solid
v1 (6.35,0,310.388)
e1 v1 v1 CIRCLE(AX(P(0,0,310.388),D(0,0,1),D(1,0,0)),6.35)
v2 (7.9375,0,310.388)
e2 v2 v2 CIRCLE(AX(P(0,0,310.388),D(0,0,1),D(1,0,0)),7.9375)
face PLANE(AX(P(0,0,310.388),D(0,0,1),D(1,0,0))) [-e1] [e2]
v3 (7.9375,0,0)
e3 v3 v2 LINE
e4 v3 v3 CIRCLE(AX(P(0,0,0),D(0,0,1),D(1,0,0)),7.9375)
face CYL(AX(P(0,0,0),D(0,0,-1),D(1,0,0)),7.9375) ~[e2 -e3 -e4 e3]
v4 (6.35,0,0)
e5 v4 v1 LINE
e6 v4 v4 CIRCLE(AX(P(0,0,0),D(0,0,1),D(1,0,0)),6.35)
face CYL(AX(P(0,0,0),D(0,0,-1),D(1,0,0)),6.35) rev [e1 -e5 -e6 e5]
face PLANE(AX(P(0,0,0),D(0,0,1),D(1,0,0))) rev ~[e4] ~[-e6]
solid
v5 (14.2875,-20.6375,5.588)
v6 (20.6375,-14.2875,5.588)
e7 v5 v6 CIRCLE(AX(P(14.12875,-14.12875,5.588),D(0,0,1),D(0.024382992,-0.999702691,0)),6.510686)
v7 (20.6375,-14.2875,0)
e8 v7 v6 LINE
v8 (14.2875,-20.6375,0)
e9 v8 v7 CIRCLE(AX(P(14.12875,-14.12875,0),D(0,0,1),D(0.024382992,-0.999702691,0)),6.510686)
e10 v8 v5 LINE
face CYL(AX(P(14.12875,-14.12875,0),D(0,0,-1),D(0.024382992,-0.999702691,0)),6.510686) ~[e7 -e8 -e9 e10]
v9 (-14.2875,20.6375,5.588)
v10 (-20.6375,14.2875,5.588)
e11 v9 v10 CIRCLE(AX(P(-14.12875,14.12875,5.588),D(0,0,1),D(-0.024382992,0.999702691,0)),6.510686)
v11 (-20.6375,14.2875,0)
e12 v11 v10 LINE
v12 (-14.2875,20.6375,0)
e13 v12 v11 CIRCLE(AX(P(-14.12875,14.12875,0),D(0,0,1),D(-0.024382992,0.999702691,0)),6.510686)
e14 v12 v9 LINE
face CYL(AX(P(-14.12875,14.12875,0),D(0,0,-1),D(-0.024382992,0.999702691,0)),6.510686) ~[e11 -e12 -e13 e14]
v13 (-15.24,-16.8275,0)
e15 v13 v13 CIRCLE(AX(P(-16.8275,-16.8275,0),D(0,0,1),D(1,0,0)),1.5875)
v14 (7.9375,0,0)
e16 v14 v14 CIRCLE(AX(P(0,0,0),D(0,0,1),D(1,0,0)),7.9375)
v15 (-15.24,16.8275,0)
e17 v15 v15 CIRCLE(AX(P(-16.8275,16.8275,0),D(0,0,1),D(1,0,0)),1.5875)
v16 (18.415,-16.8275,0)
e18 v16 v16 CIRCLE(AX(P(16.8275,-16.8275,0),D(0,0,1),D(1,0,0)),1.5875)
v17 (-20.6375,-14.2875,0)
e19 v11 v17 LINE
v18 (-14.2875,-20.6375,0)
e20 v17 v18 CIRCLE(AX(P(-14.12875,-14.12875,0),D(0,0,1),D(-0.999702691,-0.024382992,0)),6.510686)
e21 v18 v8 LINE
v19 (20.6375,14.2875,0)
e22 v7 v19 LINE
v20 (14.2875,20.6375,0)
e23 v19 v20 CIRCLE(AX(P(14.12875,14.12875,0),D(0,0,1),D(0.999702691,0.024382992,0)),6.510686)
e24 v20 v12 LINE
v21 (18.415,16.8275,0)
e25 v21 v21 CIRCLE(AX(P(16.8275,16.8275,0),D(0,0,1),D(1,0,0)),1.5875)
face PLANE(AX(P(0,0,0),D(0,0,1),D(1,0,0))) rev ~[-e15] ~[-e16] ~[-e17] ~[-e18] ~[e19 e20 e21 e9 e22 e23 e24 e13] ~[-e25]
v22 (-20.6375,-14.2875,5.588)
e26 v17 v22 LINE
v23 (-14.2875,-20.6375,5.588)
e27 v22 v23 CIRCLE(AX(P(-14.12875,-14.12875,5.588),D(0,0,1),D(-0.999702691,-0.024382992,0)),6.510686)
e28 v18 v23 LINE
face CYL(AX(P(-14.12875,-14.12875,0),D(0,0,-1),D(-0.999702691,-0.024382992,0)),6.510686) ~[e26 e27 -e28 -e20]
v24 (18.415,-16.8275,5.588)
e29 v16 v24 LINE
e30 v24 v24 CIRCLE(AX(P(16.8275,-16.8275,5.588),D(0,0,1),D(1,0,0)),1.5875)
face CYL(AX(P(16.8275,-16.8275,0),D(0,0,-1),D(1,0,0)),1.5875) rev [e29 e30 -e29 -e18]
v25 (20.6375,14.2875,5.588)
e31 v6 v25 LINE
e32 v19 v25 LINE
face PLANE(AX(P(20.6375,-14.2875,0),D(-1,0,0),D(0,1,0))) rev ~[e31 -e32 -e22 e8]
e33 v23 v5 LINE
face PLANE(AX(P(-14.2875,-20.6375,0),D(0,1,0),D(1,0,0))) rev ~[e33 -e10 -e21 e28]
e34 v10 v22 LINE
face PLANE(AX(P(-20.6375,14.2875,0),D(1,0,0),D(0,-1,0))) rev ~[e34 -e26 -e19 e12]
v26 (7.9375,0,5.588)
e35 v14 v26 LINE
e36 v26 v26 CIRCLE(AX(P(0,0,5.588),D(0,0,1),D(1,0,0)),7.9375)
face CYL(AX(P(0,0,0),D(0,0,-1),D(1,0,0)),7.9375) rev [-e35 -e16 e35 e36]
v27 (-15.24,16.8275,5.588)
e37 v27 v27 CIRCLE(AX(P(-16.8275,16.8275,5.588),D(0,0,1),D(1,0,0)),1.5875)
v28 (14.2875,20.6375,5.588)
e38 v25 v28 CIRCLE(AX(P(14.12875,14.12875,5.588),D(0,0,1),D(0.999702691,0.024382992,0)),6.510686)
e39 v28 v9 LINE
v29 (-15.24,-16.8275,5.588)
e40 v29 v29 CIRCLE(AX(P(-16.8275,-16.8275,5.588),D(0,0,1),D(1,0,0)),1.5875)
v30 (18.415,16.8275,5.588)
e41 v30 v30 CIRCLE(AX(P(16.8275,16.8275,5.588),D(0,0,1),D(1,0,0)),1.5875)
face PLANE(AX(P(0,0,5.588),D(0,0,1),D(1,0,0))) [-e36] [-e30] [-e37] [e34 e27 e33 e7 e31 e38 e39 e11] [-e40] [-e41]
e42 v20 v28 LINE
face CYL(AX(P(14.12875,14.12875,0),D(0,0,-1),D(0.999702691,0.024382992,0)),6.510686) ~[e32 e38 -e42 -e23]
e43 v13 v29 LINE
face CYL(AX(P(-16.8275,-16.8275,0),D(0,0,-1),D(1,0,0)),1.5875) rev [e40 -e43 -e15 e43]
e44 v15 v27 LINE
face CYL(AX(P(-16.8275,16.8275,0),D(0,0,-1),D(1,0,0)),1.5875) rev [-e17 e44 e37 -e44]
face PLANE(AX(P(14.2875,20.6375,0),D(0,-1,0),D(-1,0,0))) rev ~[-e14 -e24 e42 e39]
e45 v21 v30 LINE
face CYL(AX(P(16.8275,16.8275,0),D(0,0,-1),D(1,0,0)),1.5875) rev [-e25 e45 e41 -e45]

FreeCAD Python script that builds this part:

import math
import FreeCAD as App
import Part
import Sketcher
Q = App.Units.Quantity

doc = App.newDocument("Part")
body = doc.addObject("PartDesign::Body", "Body")

# Sketch on XY plane
sketch1 = doc.addObject("Sketcher::SketchObject", "Sketch")
body.addObject(sketch1)
sketch1.AttachmentSupport = (doc.XY_Plane, [""])
sketch1.MapMode = "FlatFace"
sketch1.addGeometry([
    Part.LineSegment(App.Vector(14.3, 20.6, 0), App.Vector(-14.3, 20.6, 0)),  # 0
    Part.ArcOfCircle(Part.Circle(App.Vector(-14.1, 14.1, 0), App.Vector(0, 0, 1), 6.5), math.radians(91), math.radians(179)),  # 1
    Part.LineSegment(App.Vector(-20.6, 14.3, 0), App.Vector(-20.6, -14.3, 0)),  # 2
    Part.ArcOfCircle(Part.Circle(App.Vector(-14.1, -14.1, 0), App.Vector(0, 0, 1), 6.5), math.radians(-179), math.radians(-91)),  # 3
    Part.LineSegment(App.Vector(-14.3, -20.6, 0), App.Vector(14.3, -20.6, 0)),  # 4
    Part.ArcOfCircle(Part.Circle(App.Vector(14.1, -14.1, 0), App.Vector(0, 0, 1), 6.5), math.radians(-89), math.radians(-1)),  # 5
    Part.LineSegment(App.Vector(20.6, -14.3, 0), App.Vector(20.6, 14.3, 0)),  # 6
    Part.ArcOfCircle(Part.Circle(App.Vector(14.1, 14.1, 0), App.Vector(0, 0, 1), 6.5), math.radians(1), math.radians(89)),  # 7
    Part.Circle(App.Vector(-16.8, -16.8, 0), App.Vector(0, 0, 1), 1.6),  # 8
    Part.Circle(App.Vector(0, 0, 0), App.Vector(0, 0, 1), 7.9),  # 9
    Part.Circle(App.Vector(16.8, -16.8, 0), App.Vector(0, 0, 1), 1.6),  # 10
    Part.Circle(App.Vector(-16.8, 16.8, 0), App.Vector(0, 0, 1), 1.6),  # 11
    Part.Circle(App.Vector(16.8, 16.8, 0), App.Vector(0, 0, 1), 1.6),  # 12
], False)
sketch1.addConstraint([
    Sketcher.Constraint("Coincident", 0, 2, 1, 1),
    Sketcher.Constraint("Coincident", 1, 2, 2, 1),
    Sketcher.Constraint("Coincident", 2, 2, 3, 1),
    Sketcher.Constraint("Coincident", 3, 2, 4, 1),
    Sketcher.Constraint("Coincident", 4, 2, 5, 1),
    Sketcher.Constraint("Coincident", 5, 2, 6, 1),
    Sketcher.Constraint("Coincident", 6, 2, 7, 1),
    Sketcher.Constraint("Coincident", 7, 2, 0, 1),
    Sketcher.Constraint("Horizontal", 0),
    Sketcher.Constraint("Vertical", 2),
    Sketcher.Constraint("Horizontal", 4),
    Sketcher.Constraint("Vertical", 6),
    Sketcher.Constraint("Coincident", 9, 3, -1, 1),
    Sketcher.Constraint("Equal", 1, 3),
    Sketcher.Constraint("Equal", 3, 5),
    Sketcher.Constraint("Equal", 5, 7),
    Sketcher.Constraint("Equal", 8, 10),
    Sketcher.Constraint("Equal", 10, 11),
    Sketcher.Constraint("Equal", 11, 12),
    Sketcher.Constraint("Symmetric", 1, 3, 5, 3, -1, 1),
    Sketcher.Constraint("Symmetric", 3, 3, 7, 3, -1, 1),
    Sketcher.Constraint("Symmetric", 10, 3, 11, 3, -1, 1),
    Sketcher.Constraint("Symmetric", 8, 3, 12, 3, -1, 1),
    Sketcher.Constraint("Symmetric", 3, 3, 5, 3, -2),
    Sketcher.Constraint("Symmetric", 8, 3, 10, 3, -2),
    Sketcher.Constraint("Horizontal", 2, 2, 5, 2),
    Sketcher.Constraint("Vertical", 0, 2, 3, 2),
    Sketcher.Constraint("Equal", 4, 2),
    Sketcher.Constraint("Diameter", 8, Q("0.125 in")),
    Sketcher.Constraint("Diameter", 9, Q("0.625 in")),
    Sketcher.Constraint("DistanceX", 11, 3, 0, 2, Q("0.1 in")),
    Sketcher.Constraint("DistanceY", 1, 2, 11, 3, Q("0.1 in")),
    Sketcher.Constraint("DistanceX", 0, 2, 0, 1, Q("1.125 in")),
    Sketcher.Constraint("DistanceY", 11, 3, 0, 2, Q("0.15 in")),
    Sketcher.Constraint("DistanceX", 1, 2, 11, 3, Q("0.15 in")),
    Sketcher.Constraint("DistanceY", 8, 3, 1, 3, Q("1.21875 in")),
])
pad1 = doc.addObject("PartDesign::Pad", "Pad")
body.addObject(pad1)
pad1.Profile = sketch1
pad1.Length = Q("0.22 in")
body2 = doc.addObject("PartDesign::Body", "Body001")

# Sketch on XY plane
sketch2 = doc.addObject("Sketcher::SketchObject", "Sketch001")
body2.addObject(sketch2)
sketch2.AttachmentSupport = (doc.getObject("XY_Plane001"), [""])
sketch2.MapMode = "FlatFace"
sketch2.addGeometry([
    Part.Circle(App.Vector(0, 0, 0), App.Vector(0, 0, 1), 8),
    Part.Circle(App.Vector(0, 0, 0), App.Vector(0, 0, 1), 6),
], False)
sketch2.addConstraint([
    Sketcher.Constraint("Coincident", 0, 3, -1, 1),
    Sketcher.Constraint("Coincident", 1, 3, -1, 1),
    Sketcher.Constraint("Diameter", 1, Q("0.5 in")),
    Sketcher.Constraint("Diameter", 0, Q("0.625 in")),
])
pad2 = doc.addObject("PartDesign::Pad", "Pad001")
body2.addObject(pad2)
pad2.Profile = sketch2
pad2.Length = Q("12.22 in")

doc.recompute()
